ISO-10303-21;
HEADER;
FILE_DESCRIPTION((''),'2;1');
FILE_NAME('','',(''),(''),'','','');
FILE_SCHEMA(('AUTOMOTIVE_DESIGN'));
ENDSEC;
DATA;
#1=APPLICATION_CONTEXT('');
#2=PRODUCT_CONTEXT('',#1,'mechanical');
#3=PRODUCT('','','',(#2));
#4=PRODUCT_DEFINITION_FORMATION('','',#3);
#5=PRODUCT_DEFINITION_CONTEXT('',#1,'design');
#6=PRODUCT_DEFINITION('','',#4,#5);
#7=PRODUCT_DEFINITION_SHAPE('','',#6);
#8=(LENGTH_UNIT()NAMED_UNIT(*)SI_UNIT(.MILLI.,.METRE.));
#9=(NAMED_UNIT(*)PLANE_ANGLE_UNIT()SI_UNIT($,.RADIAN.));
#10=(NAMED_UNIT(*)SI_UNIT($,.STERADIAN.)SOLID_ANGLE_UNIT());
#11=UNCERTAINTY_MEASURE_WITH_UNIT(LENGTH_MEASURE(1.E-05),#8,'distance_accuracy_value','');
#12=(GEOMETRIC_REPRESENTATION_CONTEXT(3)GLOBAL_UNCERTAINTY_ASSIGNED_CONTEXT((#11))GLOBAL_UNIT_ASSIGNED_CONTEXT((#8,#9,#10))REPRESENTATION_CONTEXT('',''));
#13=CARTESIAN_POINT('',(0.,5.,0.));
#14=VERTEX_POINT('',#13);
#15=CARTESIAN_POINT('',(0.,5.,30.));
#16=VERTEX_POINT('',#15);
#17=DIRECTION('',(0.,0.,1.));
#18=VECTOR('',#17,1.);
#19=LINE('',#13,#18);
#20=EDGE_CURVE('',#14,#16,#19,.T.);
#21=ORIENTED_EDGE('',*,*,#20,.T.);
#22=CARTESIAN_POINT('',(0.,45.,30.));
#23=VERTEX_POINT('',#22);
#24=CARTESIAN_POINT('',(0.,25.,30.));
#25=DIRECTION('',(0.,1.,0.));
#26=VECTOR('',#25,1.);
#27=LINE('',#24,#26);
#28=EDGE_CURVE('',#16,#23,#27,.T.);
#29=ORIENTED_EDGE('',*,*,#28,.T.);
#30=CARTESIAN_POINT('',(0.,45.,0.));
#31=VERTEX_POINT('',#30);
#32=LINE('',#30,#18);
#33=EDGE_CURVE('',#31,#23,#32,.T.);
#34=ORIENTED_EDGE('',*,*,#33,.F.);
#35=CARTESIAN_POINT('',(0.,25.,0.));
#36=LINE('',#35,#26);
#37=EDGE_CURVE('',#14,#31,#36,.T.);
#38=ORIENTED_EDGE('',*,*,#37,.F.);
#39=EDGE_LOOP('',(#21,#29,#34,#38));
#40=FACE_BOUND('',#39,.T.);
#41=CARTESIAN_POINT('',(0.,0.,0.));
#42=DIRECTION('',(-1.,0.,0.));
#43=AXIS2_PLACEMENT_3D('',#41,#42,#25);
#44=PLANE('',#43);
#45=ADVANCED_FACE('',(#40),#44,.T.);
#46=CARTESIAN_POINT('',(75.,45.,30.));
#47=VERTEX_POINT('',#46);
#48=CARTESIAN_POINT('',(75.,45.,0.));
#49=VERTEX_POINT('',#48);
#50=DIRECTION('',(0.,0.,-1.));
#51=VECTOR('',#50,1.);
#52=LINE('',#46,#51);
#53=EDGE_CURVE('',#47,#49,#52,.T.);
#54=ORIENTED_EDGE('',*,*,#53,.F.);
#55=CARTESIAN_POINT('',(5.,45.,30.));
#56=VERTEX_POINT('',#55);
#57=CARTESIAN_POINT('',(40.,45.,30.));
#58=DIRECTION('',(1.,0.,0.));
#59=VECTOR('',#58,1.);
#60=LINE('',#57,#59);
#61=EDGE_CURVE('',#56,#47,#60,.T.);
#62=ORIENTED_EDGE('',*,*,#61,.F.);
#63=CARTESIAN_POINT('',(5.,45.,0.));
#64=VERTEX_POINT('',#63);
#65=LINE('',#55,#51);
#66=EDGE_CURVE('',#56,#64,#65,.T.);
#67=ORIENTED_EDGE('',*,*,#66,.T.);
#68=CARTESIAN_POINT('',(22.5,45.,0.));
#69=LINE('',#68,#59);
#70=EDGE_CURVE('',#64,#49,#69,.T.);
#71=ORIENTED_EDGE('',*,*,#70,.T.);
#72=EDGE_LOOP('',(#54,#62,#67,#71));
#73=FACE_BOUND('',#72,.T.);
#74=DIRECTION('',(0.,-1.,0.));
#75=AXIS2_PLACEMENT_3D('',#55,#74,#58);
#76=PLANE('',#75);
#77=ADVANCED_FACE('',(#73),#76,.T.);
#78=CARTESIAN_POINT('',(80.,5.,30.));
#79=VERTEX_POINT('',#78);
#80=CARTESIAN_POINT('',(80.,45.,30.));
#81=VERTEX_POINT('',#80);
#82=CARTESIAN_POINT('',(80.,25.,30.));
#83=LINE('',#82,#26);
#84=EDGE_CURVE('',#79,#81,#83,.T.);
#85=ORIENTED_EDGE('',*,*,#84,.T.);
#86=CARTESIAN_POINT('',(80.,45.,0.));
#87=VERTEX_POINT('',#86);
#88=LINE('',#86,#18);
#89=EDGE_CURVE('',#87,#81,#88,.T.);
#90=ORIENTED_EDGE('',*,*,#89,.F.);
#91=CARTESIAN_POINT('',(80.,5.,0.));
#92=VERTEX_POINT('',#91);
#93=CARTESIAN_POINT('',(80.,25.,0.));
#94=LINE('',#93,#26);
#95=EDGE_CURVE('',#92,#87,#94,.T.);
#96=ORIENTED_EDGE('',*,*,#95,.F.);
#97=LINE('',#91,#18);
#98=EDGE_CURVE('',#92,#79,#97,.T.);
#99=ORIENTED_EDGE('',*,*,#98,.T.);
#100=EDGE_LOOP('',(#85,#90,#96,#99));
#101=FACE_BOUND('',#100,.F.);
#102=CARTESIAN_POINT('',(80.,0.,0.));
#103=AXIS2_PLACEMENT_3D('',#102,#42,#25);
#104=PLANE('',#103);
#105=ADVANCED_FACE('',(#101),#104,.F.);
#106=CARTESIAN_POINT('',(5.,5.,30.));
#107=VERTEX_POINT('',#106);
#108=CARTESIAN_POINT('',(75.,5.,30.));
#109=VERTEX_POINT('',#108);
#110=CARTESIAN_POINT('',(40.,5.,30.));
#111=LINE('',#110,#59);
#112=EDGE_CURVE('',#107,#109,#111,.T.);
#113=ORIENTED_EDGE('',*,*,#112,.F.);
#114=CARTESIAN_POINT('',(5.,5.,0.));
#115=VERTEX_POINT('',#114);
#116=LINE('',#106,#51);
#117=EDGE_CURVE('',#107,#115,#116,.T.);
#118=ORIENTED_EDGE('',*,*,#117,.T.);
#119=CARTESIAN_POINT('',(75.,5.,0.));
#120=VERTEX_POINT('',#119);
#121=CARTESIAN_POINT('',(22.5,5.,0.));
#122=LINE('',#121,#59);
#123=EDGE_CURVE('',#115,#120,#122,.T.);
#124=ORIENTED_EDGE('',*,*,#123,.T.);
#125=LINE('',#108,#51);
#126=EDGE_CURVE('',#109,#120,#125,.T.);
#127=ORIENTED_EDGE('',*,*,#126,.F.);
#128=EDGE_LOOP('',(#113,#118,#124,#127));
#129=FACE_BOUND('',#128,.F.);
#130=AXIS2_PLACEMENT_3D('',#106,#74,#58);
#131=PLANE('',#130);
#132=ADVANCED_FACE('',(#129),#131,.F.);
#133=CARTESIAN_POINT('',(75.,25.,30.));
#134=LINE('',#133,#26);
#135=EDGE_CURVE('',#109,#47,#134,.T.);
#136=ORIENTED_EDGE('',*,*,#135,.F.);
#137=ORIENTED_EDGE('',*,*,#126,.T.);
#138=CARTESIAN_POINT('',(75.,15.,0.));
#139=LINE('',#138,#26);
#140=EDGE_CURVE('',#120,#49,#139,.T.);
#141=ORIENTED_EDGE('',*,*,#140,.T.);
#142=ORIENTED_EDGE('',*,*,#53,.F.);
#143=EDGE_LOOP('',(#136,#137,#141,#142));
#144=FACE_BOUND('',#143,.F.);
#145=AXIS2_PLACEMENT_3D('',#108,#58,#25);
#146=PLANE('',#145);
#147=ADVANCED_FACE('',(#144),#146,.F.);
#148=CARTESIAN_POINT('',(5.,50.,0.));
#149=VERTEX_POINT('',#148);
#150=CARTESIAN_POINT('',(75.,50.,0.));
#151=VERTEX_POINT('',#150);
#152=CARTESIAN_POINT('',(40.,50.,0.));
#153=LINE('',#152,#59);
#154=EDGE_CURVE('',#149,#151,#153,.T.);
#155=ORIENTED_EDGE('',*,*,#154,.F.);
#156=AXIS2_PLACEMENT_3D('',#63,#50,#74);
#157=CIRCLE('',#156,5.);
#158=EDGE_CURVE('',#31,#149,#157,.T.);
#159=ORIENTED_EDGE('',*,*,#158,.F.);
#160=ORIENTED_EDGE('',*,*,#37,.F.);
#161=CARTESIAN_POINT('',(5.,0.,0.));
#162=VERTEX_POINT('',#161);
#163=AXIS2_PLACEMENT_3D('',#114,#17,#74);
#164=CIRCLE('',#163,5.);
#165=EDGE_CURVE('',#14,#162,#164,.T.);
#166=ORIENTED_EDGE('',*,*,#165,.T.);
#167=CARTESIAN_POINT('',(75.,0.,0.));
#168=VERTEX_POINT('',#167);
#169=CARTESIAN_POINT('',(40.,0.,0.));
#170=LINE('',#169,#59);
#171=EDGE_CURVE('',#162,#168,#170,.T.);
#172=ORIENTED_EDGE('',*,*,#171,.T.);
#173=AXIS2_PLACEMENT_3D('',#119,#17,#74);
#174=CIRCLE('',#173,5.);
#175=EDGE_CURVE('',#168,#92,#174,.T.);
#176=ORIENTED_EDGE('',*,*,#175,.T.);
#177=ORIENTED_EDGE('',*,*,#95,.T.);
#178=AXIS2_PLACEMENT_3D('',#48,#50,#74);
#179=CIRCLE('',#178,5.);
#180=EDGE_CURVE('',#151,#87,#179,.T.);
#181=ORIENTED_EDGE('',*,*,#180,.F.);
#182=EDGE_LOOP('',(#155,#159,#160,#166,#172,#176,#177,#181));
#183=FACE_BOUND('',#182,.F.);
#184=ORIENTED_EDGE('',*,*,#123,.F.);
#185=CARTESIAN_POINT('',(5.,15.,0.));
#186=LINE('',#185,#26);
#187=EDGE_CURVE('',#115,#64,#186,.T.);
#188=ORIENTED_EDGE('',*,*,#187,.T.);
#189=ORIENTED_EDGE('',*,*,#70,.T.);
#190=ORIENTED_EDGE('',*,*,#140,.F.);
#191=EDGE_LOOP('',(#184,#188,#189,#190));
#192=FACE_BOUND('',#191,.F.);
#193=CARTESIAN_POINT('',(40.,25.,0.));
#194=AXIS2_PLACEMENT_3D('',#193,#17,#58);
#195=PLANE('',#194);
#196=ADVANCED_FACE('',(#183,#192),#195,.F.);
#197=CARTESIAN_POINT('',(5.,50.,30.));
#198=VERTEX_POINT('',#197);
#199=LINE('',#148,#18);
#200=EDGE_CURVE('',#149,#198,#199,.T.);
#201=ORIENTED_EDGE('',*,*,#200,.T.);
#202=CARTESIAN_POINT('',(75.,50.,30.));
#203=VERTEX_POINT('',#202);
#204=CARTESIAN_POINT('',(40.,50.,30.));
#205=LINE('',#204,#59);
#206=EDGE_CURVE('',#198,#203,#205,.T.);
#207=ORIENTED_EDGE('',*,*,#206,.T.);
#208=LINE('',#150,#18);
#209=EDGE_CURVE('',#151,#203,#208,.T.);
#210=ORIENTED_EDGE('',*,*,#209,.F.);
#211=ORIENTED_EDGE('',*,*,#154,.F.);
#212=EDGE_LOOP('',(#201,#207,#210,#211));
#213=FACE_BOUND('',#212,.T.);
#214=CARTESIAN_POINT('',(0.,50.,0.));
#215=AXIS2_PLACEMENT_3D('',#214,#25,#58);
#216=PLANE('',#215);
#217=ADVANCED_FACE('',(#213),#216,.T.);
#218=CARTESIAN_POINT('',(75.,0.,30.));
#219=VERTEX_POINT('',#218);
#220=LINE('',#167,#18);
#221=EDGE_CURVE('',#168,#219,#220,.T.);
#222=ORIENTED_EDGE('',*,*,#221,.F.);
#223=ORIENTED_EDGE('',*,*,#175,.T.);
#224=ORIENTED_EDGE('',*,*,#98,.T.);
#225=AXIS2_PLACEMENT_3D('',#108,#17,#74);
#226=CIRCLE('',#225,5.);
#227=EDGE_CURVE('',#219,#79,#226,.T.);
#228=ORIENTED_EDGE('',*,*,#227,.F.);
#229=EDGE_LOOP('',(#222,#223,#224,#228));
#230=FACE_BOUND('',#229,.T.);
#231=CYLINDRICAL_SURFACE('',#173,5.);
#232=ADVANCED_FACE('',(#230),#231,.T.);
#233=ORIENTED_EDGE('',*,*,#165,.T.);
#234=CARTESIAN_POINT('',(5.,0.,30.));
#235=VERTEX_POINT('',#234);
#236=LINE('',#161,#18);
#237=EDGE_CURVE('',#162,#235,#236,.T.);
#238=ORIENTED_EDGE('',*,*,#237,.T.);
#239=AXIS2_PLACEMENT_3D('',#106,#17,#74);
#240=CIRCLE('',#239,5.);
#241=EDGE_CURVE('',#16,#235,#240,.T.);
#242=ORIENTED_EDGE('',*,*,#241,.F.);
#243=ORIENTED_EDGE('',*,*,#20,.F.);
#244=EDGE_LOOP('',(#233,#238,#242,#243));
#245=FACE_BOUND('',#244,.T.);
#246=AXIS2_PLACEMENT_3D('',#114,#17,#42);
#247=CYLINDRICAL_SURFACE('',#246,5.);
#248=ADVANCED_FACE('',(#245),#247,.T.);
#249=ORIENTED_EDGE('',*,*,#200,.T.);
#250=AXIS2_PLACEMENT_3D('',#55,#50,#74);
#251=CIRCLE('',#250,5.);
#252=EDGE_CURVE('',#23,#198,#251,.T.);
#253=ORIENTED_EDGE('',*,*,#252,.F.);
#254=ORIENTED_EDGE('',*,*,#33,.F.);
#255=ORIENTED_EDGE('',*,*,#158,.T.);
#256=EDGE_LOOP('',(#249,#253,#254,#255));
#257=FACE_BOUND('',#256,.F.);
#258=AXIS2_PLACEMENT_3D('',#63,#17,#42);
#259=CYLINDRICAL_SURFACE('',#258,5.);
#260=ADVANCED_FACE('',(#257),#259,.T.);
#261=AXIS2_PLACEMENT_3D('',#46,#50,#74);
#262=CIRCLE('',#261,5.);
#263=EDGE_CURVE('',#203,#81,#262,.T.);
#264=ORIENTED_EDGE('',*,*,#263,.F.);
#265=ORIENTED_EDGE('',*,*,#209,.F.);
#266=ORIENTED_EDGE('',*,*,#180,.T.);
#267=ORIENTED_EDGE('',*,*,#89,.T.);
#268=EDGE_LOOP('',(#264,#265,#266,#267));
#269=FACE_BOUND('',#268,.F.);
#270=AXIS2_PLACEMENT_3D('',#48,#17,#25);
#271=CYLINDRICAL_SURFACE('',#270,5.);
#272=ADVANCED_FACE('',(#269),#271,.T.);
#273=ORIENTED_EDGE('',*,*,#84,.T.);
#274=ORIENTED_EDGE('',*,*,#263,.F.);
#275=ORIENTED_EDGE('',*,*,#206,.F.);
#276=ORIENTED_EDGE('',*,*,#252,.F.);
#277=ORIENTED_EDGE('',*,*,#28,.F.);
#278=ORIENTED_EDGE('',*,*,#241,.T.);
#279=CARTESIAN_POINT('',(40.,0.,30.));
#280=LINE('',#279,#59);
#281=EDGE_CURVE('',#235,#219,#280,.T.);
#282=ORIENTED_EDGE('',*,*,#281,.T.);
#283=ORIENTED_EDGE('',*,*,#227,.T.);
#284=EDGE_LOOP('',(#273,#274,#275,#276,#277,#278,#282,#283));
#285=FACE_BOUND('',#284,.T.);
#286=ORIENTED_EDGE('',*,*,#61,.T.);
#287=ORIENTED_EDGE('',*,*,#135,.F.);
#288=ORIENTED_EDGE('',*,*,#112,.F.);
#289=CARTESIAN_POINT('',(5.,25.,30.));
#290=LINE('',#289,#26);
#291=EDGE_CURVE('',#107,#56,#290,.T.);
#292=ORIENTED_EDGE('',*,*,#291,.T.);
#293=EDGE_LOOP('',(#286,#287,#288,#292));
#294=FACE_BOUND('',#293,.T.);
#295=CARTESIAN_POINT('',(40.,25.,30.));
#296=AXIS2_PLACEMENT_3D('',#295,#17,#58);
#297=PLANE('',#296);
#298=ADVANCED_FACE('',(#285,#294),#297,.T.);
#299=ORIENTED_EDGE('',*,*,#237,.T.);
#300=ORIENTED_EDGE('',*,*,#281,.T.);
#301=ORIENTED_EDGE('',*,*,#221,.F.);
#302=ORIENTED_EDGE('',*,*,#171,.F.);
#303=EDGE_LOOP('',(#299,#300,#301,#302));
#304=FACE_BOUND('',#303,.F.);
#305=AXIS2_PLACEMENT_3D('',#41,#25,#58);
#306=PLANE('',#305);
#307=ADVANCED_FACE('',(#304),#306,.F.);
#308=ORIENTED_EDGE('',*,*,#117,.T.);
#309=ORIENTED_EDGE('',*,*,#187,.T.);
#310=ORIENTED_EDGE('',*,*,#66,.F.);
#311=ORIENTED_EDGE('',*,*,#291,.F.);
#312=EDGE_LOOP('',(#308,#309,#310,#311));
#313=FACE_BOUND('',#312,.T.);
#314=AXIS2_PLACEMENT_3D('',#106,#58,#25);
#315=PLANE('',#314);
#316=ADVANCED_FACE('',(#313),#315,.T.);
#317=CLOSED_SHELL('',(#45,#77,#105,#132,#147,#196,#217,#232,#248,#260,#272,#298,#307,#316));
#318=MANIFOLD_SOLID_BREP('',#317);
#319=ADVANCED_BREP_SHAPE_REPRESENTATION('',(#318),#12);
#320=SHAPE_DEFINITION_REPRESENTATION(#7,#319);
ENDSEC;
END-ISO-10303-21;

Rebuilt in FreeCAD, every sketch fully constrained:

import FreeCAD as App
import Part
import Sketcher

V = App.Vector


def edges_at(feature, points):
    """Names of the edges that pass closest to the given points."""
    edges = feature.Shape.Edges
    near = lambda p: min(range(len(edges)), key=lambda i: edges[i].distToShape(Part.Vertex(*p))[0])
    return sorted({f"Edge{near(p) + 1}" for p in points})


def add_polygon(sketch, points):
    """Adds a closed chain of lines whose ends are joined by coincident constraints."""
    first, n = sketch.GeometryCount, len(points)
    for a, b in zip(points, points[1:] + points[:1]):
        sketch.addGeometry(Part.LineSegment(App.Vector(*a, 0), App.Vector(*b, 0)), False)
    for i in range(n):
        sketch.addConstraint(Sketcher.Constraint("Coincident", first + i, 2, first + (i + 1) % n, 1))

doc = App.newDocument("Part")
params = doc.addObject("Spreadsheet::Sheet", "Params")
for row, (alias, value) in enumerate([
    ("sketch1_width", "80 mm"),
    ("sketch1_height", "50 mm"),
    ("pad1_length", "30 mm"),
    ("sketch2_width", "70 mm"),
    ("sketch2_height", "40 mm"),
    ("fillet_radius", "5 mm"),
], start=1):
    params.set(f"A{row}", alias)
    params.set(f"B{row}", "=" + value)
    params.setAlias(f"B{row}", alias)

body = doc.addObject("PartDesign::Body", "Body")

sketch1 = body.newObject("Sketcher::SketchObject", "Sketch")
sketch1.AttachmentSupport = (doc.getObject("XY_Plane"), [""])
sketch1.MapMode = "FlatFace"
add_polygon(sketch1, [(0, 50), (0, 0), (80, 0), (80, 50)])
sketch1.addConstraint([
    Sketcher.Constraint("Vertical", 0),
    Sketcher.Constraint("Horizontal", 1),
    Sketcher.Constraint("Vertical", 2),
    Sketcher.Constraint("Horizontal", 3),
    Sketcher.Constraint("Coincident", 0, 2, -1, 1),
    Sketcher.Constraint("DistanceX", 1, 1, 1, 2, 80.0),
    Sketcher.Constraint("DistanceY", 0, 2, 0, 1, 50.0),
])
sketch1.setExpression("Constraints[9]", "Params.sketch1_width")
sketch1.setExpression("Constraints[10]", "Params.sketch1_height")
pad1 = body.newObject("PartDesign::Pad", "Pad")
pad1.Profile = sketch1
pad1.setExpression("Length", "Params.pad1_length")

sketch2 = body.newObject("Sketcher::SketchObject", "Sketch001")
sketch2.AttachmentSupport = (doc.getObject("XY_Plane"), [""])
sketch2.MapMode = "FlatFace"
sketch2.AttachmentOffset = App.Placement(V(0, 0, 30), App.Rotation())
add_polygon(sketch2, [(5, 45), (5, 5), (75, 5), (75, 45)])
sketch2.addConstraint([
    Sketcher.Constraint("Vertical", 0),
    Sketcher.Constraint("Horizontal", 1),
    Sketcher.Constraint("Vertical", 2),
    Sketcher.Constraint("Horizontal", 3),
    Sketcher.Constraint("DistanceX", 1, 1, 1, 2, 70.0),
    Sketcher.Constraint("DistanceY", 0, 2, 0, 1, 40.0),
    Sketcher.Constraint("DistanceX", -1, 1, 0, 2, 5.0),
    Sketcher.Constraint("DistanceY", -1, 1, 0, 2, 5.0),
])
sketch2.setExpression("Constraints[8]", "Params.sketch2_width")
sketch2.setExpression("Constraints[9]", "Params.sketch2_height")
pocket1 = body.newObject("PartDesign::Pocket", "Pocket")
pocket1.Profile = sketch2
pocket1.Type = "ThroughAll"
doc.recompute()

fillet = body.newObject("PartDesign::Fillet", "Fillet")
fillet.Base = (pocket1, edges_at(pocket1, [
    (0, 0, 15),
    (80, 0, 15),
    (0, 50, 15),
    (80, 50, 15),
]))
fillet.setExpression("Radius", "Params.fillet_radius")

doc.recompute()
